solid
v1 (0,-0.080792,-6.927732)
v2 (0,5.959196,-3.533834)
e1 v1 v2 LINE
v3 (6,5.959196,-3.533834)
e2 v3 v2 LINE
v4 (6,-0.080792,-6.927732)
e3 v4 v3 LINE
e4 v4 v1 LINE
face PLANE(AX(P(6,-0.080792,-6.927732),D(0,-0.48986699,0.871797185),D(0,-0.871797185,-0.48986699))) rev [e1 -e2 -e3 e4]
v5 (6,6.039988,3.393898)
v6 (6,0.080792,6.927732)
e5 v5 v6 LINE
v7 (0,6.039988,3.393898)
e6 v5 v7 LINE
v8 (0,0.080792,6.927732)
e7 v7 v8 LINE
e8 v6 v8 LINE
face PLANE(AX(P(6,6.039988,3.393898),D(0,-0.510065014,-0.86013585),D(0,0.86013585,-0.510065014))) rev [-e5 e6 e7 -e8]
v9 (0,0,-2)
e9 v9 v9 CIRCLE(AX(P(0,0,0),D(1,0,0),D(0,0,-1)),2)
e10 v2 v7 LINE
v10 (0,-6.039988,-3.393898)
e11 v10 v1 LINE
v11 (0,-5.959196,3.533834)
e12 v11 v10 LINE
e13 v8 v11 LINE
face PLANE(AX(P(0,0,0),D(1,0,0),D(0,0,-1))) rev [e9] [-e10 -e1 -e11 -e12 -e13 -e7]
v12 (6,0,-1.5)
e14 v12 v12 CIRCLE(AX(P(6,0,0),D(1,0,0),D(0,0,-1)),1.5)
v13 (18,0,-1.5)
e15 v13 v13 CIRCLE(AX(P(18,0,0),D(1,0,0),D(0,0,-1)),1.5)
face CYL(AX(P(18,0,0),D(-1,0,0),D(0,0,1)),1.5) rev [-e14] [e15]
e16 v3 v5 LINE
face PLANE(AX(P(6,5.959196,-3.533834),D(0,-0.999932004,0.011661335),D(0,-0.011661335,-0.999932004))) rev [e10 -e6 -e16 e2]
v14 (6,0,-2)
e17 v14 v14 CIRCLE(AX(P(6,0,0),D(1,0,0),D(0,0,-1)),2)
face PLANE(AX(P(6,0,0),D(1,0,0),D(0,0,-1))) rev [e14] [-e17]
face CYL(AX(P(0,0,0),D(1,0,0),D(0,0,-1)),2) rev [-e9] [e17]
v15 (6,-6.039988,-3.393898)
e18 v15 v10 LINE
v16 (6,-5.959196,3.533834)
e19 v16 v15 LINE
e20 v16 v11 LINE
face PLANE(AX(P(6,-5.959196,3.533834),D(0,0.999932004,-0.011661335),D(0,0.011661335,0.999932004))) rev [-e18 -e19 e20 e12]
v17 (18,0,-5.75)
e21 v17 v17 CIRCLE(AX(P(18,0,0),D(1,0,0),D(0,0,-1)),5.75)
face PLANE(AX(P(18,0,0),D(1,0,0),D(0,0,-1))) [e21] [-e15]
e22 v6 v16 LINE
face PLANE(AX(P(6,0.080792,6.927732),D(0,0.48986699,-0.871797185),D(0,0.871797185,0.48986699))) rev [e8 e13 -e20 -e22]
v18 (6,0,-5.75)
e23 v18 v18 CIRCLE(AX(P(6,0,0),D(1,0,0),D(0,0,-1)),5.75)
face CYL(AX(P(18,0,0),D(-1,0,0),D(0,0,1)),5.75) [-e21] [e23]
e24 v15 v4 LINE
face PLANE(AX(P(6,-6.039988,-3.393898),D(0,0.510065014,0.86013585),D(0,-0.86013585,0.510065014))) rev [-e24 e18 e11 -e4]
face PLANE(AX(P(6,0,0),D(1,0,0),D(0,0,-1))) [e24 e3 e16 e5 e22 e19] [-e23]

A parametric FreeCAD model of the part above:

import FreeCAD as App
import Part
import Sketcher
from FreeCAD import Vector

doc = App.newDocument("Part")
body = doc.addObject("PartDesign::Body", "Body")

sketch1 = body.newObject("Sketcher::SketchObject", "Sketch")
sketch1.AttachmentSupport = (doc.getObject("YZ_Plane"), [""])
sketch1.MapMode = "FlatFace"
sketch1.addGeometry([
    Part.LineSegment(Vector(-6, -3, 0), Vector(0, -7, 0)),
    Part.LineSegment(Vector(0, -7, 0), Vector(6, -4, 0)),
    Part.LineSegment(Vector(6, -4, 0), Vector(6, 3, 0)),
    Part.LineSegment(Vector(6, 3, 0), Vector(0, 7, 0)),
    Part.LineSegment(Vector(0, 7, 0), Vector(-6, 4, 0)),
    Part.LineSegment(Vector(-6, 4, 0), Vector(-6, -3, 0)),
], False)
sketch1.addConstraint([
    Sketcher.Constraint("Coincident", 0, 2, 1, 1),
    Sketcher.Constraint("Coincident", 1, 2, 2, 1),
    Sketcher.Constraint("Coincident", 2, 2, 3, 1),
    Sketcher.Constraint("Coincident", 3, 2, 4, 1),
    Sketcher.Constraint("Coincident", 4, 2, 5, 1),
    Sketcher.Constraint("Coincident", 5, 2, 0, 1),
    Sketcher.Constraint("Symmetric", 0, 2, 3, 2, -1, 1),
    Sketcher.Constraint("Symmetric", 1, 2, 4, 2, -1, 1),
    Sketcher.Constraint("Symmetric", 2, 2, 5, 2, -1, 1),
    Sketcher.Constraint("Equal", 0, 1),
    Sketcher.Constraint("Equal", 1, 2),
    Sketcher.Constraint("DistanceY", -1, 1, 2, 2, 3.393898),
    Sketcher.Constraint("DistanceY", 0, 2, 1, 2, 3.393898),
    Sketcher.Constraint("DistanceX", -1, 1, 2, 2, 6.039988),
    Sketcher.Constraint("DistanceX", 0, 2, 1, 2, 6.039988),
])
pad1 = body.newObject("PartDesign::Pad", "Pad")
pad1.Profile = sketch1
pad1.Length = 6

sketch2 = body.newObject("Sketcher::SketchObject", "Sketch001")
sketch2.AttachmentSupport = (doc.getObject("YZ_Plane"), [""])
sketch2.MapMode = "FlatFace"
sketch2.AttachmentOffset = App.Placement(Vector(0, 0, 6), App.Rotation())
sketch2.addGeometry(Part.Circle(Vector(0, 0, 0), Vector(0, 0, 1), 2), False)
sketch2.addConstraint([
    Sketcher.Constraint("Coincident", 0, 3, -1, 1),
    Sketcher.Constraint("Diameter", 0, 4.0),
])
pocket1 = body.newObject("PartDesign::Pocket", "Pocket")
pocket1.Profile = sketch2
pocket1.Length = 6

sketch3 = body.newObject("Sketcher::SketchObject", "Sketch002")
sketch3.AttachmentSupport = (doc.getObject("YZ_Plane"), [""])
sketch3.MapMode = "FlatFace"
sketch3.AttachmentOffset = App.Placement(Vector(0, 0, 6), App.Rotation())
sketch3.addGeometry([
    Part.Circle(Vector(0, 0, 0), Vector(0, 0, 1), 5.8),
    Part.Circle(Vector(0, 0, 0), Vector(0, 0, 1), 1.5),
], False)
sketch3.addConstraint([
    Sketcher.Constraint("Coincident", 0, 3, -1, 1),
    Sketcher.Constraint("Coincident", 1, 3, -1, 1),
    Sketcher.Constraint("Diameter", 1, 3.0),
    Sketcher.Constraint("Diameter", 0, 11.5),
])
pad2 = body.newObject("PartDesign::Pad", "Pad001")
pad2.Profile = sketch3
pad2.Length = 12

doc.recompute()
